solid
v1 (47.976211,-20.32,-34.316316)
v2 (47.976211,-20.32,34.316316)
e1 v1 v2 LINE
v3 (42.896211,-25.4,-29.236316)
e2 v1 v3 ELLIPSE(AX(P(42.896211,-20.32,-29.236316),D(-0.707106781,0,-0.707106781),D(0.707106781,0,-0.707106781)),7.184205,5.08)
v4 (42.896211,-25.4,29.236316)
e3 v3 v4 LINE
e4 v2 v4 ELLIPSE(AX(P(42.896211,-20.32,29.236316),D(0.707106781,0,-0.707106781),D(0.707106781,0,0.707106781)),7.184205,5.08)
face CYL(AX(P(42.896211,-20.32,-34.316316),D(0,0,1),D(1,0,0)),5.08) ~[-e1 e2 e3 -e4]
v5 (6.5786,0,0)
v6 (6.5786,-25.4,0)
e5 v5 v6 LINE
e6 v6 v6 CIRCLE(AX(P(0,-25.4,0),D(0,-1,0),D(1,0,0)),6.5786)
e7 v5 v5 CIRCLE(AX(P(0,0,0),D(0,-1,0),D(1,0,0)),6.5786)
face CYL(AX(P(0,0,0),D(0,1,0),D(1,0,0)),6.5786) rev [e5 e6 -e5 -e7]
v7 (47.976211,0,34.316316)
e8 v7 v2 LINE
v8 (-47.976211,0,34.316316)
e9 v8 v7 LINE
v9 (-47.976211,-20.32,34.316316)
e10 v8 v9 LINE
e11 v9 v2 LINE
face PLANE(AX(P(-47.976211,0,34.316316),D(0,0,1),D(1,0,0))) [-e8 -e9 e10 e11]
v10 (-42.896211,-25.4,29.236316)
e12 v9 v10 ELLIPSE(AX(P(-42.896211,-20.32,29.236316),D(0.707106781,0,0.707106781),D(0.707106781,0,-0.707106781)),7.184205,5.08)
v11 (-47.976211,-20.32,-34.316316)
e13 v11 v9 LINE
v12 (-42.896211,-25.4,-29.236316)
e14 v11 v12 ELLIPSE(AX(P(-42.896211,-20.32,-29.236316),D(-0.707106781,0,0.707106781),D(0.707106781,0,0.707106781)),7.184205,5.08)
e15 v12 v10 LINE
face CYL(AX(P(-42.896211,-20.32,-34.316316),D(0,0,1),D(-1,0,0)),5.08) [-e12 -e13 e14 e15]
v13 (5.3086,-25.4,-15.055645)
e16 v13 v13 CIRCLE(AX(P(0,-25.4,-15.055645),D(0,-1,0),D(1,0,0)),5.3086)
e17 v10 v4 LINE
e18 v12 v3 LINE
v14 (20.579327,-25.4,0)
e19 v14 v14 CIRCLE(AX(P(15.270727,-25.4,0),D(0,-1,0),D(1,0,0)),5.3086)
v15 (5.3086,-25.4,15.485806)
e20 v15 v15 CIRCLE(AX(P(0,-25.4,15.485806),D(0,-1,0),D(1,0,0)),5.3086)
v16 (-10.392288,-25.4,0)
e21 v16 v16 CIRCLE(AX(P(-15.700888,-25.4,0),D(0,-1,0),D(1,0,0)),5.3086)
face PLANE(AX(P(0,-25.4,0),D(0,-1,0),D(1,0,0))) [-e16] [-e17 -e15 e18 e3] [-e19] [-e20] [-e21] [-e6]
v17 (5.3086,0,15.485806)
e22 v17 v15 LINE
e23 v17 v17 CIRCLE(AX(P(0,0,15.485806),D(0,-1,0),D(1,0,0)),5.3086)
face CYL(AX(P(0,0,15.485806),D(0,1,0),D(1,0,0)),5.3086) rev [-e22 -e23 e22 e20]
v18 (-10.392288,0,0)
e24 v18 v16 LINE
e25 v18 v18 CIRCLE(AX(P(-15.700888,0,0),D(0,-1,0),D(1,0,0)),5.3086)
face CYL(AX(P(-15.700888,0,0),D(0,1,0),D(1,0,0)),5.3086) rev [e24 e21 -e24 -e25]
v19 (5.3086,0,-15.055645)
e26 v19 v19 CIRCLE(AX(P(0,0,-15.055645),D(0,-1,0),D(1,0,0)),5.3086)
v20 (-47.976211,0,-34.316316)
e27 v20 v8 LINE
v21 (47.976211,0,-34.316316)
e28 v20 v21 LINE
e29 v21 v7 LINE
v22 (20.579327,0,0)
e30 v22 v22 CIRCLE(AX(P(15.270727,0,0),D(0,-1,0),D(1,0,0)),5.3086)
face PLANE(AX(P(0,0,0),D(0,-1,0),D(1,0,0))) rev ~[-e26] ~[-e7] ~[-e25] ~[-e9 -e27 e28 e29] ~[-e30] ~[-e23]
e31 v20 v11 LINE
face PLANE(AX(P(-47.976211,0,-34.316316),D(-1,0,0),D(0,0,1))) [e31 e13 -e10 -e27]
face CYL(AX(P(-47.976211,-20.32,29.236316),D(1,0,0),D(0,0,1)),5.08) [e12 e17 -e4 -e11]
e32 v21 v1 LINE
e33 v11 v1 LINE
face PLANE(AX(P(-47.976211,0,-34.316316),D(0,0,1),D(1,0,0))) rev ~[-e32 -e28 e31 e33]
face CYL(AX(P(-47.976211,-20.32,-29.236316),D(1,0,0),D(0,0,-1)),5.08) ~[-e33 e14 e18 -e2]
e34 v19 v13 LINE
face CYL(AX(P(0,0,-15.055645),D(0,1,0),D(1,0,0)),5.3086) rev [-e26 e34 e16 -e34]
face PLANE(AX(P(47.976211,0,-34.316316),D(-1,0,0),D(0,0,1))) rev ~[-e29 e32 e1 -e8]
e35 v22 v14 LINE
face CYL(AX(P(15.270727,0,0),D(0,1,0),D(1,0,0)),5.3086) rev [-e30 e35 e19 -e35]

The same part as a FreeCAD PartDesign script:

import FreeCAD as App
import Part
import Sketcher
from FreeCAD import Vector
Q = App.Units.Quantity


def edges_at(feature, points):
    """Names of the edges that pass closest to the given points."""
    edges = feature.Shape.Edges
    near = lambda p: min(range(len(edges)), key=lambda i: edges[i].distToShape(Part.Vertex(*p))[0])
    return sorted({f"Edge{near(p) + 1}" for p in points})


def add_polygon(sketch, points):
    """Adds a closed chain of lines whose ends are joined by coincident constraints."""
    first, n = sketch.GeometryCount, len(points)
    for a, b in zip(points, points[1:] + points[:1]):
        sketch.addGeometry(Part.LineSegment(App.Vector(*a, 0), App.Vector(*b, 0)), False)
    for i in range(n):
        sketch.addConstraint(Sketcher.Constraint("Coincident", first + i, 2, first + (i + 1) % n, 1))

doc = App.newDocument("Part")
body = doc.addObject("PartDesign::Body", "Body")

# Sketch on XZ plane
sketch1 = doc.addObject("Sketcher::SketchObject", "Sketch")
body.addObject(sketch1)
sketch1.AttachmentSupport = (doc.XZ_Plane, [""])
sketch1.MapMode = "FlatFace"
add_polygon(sketch1, [(-47.976211, 34.316316), (-47.976211, -34.316316), (47.976211, -34.316316), (47.976211, 34.316316)])  # lines 0-3
sketch1.addGeometry(Part.Circle(Vector(-15.700888, 0, 0), Vector(0, 0, 1), 5.3086), False)  # 4
sketch1.addGeometry(Part.Circle(Vector(0, -15.055645, 0), Vector(0, 0, 1), 5.3086), False)  # 5
sketch1.addGeometry(Part.Circle(Vector(0, 0, 0), Vector(0, 0, 1), 6.5786), False)  # 6
sketch1.addGeometry(Part.Circle(Vector(15.270727, 0, 0), Vector(0, 0, 1), 5.3086), False)  # 7
sketch1.addGeometry(Part.Circle(Vector(0, 15.485806, 0), Vector(0, 0, 1), 5.3086), False)  # 8
sketch1.addConstraint([
    Sketcher.Constraint("Vertical", 0),
    Sketcher.Constraint("Horizontal", 1),
    Sketcher.Constraint("Vertical", 2),
    Sketcher.Constraint("Horizontal", 3),
    Sketcher.Constraint("Coincident", 6, 3, -1, 1),
    Sketcher.Constraint("Equal", 4, 5),
    Sketcher.Constraint("Equal", 5, 7),
    Sketcher.Constraint("Equal", 7, 8),
    Sketcher.Constraint("Symmetric", 0, 2, 2, 2, -1, 1),
    Sketcher.Constraint("PointOnObject", 4, 3, -1),
    Sketcher.Constraint("PointOnObject", 5, 3, -2),
    Sketcher.Constraint("PointOnObject", 7, 3, -1),
    Sketcher.Constraint("PointOnObject", 8, 3, -2),
    Sketcher.Constraint("Diameter", 4, Q("0.418 in")),
    Sketcher.Constraint("Diameter", 6, Q("0.518 in")),
    Sketcher.Constraint("DistanceX", 1, 1, 1, 2, Q("95.952422 mm")),
    Sketcher.Constraint("DistanceY", 0, 2, 0, 1, Q("68.632632 mm")),
    Sketcher.Constraint("DistanceX", 4, 3, 1, 2, Q("63.677099 mm")),
    Sketcher.Constraint("DistanceY", 5, 3, 8, 3, Q("30.541451 mm")),
    Sketcher.Constraint("DistanceY", 0, 2, 5, 3, Q("19.260671 mm")),
    Sketcher.Constraint("DistanceX", -1, 1, 7, 3, Q("15.270727 mm")),
])
pad1 = doc.addObject("PartDesign::Pad", "Pad")
body.addObject(pad1)
pad1.Profile = sketch1
pad1.Length = Q("1 in")
doc.recompute()

fillet = doc.addObject("PartDesign::Fillet", "Fillet")
body.addObject(fillet)
fillet.Base = (pad1, edges_at(pad1, [
    (0, -25.4, 34.316),
    (-47.976, -25.4, 0),
    (0, -25.4, -34.316),
    (47.976, -25.4, 0),
]))
fillet.Radius = Q("0.2 in")

doc.recompute()
